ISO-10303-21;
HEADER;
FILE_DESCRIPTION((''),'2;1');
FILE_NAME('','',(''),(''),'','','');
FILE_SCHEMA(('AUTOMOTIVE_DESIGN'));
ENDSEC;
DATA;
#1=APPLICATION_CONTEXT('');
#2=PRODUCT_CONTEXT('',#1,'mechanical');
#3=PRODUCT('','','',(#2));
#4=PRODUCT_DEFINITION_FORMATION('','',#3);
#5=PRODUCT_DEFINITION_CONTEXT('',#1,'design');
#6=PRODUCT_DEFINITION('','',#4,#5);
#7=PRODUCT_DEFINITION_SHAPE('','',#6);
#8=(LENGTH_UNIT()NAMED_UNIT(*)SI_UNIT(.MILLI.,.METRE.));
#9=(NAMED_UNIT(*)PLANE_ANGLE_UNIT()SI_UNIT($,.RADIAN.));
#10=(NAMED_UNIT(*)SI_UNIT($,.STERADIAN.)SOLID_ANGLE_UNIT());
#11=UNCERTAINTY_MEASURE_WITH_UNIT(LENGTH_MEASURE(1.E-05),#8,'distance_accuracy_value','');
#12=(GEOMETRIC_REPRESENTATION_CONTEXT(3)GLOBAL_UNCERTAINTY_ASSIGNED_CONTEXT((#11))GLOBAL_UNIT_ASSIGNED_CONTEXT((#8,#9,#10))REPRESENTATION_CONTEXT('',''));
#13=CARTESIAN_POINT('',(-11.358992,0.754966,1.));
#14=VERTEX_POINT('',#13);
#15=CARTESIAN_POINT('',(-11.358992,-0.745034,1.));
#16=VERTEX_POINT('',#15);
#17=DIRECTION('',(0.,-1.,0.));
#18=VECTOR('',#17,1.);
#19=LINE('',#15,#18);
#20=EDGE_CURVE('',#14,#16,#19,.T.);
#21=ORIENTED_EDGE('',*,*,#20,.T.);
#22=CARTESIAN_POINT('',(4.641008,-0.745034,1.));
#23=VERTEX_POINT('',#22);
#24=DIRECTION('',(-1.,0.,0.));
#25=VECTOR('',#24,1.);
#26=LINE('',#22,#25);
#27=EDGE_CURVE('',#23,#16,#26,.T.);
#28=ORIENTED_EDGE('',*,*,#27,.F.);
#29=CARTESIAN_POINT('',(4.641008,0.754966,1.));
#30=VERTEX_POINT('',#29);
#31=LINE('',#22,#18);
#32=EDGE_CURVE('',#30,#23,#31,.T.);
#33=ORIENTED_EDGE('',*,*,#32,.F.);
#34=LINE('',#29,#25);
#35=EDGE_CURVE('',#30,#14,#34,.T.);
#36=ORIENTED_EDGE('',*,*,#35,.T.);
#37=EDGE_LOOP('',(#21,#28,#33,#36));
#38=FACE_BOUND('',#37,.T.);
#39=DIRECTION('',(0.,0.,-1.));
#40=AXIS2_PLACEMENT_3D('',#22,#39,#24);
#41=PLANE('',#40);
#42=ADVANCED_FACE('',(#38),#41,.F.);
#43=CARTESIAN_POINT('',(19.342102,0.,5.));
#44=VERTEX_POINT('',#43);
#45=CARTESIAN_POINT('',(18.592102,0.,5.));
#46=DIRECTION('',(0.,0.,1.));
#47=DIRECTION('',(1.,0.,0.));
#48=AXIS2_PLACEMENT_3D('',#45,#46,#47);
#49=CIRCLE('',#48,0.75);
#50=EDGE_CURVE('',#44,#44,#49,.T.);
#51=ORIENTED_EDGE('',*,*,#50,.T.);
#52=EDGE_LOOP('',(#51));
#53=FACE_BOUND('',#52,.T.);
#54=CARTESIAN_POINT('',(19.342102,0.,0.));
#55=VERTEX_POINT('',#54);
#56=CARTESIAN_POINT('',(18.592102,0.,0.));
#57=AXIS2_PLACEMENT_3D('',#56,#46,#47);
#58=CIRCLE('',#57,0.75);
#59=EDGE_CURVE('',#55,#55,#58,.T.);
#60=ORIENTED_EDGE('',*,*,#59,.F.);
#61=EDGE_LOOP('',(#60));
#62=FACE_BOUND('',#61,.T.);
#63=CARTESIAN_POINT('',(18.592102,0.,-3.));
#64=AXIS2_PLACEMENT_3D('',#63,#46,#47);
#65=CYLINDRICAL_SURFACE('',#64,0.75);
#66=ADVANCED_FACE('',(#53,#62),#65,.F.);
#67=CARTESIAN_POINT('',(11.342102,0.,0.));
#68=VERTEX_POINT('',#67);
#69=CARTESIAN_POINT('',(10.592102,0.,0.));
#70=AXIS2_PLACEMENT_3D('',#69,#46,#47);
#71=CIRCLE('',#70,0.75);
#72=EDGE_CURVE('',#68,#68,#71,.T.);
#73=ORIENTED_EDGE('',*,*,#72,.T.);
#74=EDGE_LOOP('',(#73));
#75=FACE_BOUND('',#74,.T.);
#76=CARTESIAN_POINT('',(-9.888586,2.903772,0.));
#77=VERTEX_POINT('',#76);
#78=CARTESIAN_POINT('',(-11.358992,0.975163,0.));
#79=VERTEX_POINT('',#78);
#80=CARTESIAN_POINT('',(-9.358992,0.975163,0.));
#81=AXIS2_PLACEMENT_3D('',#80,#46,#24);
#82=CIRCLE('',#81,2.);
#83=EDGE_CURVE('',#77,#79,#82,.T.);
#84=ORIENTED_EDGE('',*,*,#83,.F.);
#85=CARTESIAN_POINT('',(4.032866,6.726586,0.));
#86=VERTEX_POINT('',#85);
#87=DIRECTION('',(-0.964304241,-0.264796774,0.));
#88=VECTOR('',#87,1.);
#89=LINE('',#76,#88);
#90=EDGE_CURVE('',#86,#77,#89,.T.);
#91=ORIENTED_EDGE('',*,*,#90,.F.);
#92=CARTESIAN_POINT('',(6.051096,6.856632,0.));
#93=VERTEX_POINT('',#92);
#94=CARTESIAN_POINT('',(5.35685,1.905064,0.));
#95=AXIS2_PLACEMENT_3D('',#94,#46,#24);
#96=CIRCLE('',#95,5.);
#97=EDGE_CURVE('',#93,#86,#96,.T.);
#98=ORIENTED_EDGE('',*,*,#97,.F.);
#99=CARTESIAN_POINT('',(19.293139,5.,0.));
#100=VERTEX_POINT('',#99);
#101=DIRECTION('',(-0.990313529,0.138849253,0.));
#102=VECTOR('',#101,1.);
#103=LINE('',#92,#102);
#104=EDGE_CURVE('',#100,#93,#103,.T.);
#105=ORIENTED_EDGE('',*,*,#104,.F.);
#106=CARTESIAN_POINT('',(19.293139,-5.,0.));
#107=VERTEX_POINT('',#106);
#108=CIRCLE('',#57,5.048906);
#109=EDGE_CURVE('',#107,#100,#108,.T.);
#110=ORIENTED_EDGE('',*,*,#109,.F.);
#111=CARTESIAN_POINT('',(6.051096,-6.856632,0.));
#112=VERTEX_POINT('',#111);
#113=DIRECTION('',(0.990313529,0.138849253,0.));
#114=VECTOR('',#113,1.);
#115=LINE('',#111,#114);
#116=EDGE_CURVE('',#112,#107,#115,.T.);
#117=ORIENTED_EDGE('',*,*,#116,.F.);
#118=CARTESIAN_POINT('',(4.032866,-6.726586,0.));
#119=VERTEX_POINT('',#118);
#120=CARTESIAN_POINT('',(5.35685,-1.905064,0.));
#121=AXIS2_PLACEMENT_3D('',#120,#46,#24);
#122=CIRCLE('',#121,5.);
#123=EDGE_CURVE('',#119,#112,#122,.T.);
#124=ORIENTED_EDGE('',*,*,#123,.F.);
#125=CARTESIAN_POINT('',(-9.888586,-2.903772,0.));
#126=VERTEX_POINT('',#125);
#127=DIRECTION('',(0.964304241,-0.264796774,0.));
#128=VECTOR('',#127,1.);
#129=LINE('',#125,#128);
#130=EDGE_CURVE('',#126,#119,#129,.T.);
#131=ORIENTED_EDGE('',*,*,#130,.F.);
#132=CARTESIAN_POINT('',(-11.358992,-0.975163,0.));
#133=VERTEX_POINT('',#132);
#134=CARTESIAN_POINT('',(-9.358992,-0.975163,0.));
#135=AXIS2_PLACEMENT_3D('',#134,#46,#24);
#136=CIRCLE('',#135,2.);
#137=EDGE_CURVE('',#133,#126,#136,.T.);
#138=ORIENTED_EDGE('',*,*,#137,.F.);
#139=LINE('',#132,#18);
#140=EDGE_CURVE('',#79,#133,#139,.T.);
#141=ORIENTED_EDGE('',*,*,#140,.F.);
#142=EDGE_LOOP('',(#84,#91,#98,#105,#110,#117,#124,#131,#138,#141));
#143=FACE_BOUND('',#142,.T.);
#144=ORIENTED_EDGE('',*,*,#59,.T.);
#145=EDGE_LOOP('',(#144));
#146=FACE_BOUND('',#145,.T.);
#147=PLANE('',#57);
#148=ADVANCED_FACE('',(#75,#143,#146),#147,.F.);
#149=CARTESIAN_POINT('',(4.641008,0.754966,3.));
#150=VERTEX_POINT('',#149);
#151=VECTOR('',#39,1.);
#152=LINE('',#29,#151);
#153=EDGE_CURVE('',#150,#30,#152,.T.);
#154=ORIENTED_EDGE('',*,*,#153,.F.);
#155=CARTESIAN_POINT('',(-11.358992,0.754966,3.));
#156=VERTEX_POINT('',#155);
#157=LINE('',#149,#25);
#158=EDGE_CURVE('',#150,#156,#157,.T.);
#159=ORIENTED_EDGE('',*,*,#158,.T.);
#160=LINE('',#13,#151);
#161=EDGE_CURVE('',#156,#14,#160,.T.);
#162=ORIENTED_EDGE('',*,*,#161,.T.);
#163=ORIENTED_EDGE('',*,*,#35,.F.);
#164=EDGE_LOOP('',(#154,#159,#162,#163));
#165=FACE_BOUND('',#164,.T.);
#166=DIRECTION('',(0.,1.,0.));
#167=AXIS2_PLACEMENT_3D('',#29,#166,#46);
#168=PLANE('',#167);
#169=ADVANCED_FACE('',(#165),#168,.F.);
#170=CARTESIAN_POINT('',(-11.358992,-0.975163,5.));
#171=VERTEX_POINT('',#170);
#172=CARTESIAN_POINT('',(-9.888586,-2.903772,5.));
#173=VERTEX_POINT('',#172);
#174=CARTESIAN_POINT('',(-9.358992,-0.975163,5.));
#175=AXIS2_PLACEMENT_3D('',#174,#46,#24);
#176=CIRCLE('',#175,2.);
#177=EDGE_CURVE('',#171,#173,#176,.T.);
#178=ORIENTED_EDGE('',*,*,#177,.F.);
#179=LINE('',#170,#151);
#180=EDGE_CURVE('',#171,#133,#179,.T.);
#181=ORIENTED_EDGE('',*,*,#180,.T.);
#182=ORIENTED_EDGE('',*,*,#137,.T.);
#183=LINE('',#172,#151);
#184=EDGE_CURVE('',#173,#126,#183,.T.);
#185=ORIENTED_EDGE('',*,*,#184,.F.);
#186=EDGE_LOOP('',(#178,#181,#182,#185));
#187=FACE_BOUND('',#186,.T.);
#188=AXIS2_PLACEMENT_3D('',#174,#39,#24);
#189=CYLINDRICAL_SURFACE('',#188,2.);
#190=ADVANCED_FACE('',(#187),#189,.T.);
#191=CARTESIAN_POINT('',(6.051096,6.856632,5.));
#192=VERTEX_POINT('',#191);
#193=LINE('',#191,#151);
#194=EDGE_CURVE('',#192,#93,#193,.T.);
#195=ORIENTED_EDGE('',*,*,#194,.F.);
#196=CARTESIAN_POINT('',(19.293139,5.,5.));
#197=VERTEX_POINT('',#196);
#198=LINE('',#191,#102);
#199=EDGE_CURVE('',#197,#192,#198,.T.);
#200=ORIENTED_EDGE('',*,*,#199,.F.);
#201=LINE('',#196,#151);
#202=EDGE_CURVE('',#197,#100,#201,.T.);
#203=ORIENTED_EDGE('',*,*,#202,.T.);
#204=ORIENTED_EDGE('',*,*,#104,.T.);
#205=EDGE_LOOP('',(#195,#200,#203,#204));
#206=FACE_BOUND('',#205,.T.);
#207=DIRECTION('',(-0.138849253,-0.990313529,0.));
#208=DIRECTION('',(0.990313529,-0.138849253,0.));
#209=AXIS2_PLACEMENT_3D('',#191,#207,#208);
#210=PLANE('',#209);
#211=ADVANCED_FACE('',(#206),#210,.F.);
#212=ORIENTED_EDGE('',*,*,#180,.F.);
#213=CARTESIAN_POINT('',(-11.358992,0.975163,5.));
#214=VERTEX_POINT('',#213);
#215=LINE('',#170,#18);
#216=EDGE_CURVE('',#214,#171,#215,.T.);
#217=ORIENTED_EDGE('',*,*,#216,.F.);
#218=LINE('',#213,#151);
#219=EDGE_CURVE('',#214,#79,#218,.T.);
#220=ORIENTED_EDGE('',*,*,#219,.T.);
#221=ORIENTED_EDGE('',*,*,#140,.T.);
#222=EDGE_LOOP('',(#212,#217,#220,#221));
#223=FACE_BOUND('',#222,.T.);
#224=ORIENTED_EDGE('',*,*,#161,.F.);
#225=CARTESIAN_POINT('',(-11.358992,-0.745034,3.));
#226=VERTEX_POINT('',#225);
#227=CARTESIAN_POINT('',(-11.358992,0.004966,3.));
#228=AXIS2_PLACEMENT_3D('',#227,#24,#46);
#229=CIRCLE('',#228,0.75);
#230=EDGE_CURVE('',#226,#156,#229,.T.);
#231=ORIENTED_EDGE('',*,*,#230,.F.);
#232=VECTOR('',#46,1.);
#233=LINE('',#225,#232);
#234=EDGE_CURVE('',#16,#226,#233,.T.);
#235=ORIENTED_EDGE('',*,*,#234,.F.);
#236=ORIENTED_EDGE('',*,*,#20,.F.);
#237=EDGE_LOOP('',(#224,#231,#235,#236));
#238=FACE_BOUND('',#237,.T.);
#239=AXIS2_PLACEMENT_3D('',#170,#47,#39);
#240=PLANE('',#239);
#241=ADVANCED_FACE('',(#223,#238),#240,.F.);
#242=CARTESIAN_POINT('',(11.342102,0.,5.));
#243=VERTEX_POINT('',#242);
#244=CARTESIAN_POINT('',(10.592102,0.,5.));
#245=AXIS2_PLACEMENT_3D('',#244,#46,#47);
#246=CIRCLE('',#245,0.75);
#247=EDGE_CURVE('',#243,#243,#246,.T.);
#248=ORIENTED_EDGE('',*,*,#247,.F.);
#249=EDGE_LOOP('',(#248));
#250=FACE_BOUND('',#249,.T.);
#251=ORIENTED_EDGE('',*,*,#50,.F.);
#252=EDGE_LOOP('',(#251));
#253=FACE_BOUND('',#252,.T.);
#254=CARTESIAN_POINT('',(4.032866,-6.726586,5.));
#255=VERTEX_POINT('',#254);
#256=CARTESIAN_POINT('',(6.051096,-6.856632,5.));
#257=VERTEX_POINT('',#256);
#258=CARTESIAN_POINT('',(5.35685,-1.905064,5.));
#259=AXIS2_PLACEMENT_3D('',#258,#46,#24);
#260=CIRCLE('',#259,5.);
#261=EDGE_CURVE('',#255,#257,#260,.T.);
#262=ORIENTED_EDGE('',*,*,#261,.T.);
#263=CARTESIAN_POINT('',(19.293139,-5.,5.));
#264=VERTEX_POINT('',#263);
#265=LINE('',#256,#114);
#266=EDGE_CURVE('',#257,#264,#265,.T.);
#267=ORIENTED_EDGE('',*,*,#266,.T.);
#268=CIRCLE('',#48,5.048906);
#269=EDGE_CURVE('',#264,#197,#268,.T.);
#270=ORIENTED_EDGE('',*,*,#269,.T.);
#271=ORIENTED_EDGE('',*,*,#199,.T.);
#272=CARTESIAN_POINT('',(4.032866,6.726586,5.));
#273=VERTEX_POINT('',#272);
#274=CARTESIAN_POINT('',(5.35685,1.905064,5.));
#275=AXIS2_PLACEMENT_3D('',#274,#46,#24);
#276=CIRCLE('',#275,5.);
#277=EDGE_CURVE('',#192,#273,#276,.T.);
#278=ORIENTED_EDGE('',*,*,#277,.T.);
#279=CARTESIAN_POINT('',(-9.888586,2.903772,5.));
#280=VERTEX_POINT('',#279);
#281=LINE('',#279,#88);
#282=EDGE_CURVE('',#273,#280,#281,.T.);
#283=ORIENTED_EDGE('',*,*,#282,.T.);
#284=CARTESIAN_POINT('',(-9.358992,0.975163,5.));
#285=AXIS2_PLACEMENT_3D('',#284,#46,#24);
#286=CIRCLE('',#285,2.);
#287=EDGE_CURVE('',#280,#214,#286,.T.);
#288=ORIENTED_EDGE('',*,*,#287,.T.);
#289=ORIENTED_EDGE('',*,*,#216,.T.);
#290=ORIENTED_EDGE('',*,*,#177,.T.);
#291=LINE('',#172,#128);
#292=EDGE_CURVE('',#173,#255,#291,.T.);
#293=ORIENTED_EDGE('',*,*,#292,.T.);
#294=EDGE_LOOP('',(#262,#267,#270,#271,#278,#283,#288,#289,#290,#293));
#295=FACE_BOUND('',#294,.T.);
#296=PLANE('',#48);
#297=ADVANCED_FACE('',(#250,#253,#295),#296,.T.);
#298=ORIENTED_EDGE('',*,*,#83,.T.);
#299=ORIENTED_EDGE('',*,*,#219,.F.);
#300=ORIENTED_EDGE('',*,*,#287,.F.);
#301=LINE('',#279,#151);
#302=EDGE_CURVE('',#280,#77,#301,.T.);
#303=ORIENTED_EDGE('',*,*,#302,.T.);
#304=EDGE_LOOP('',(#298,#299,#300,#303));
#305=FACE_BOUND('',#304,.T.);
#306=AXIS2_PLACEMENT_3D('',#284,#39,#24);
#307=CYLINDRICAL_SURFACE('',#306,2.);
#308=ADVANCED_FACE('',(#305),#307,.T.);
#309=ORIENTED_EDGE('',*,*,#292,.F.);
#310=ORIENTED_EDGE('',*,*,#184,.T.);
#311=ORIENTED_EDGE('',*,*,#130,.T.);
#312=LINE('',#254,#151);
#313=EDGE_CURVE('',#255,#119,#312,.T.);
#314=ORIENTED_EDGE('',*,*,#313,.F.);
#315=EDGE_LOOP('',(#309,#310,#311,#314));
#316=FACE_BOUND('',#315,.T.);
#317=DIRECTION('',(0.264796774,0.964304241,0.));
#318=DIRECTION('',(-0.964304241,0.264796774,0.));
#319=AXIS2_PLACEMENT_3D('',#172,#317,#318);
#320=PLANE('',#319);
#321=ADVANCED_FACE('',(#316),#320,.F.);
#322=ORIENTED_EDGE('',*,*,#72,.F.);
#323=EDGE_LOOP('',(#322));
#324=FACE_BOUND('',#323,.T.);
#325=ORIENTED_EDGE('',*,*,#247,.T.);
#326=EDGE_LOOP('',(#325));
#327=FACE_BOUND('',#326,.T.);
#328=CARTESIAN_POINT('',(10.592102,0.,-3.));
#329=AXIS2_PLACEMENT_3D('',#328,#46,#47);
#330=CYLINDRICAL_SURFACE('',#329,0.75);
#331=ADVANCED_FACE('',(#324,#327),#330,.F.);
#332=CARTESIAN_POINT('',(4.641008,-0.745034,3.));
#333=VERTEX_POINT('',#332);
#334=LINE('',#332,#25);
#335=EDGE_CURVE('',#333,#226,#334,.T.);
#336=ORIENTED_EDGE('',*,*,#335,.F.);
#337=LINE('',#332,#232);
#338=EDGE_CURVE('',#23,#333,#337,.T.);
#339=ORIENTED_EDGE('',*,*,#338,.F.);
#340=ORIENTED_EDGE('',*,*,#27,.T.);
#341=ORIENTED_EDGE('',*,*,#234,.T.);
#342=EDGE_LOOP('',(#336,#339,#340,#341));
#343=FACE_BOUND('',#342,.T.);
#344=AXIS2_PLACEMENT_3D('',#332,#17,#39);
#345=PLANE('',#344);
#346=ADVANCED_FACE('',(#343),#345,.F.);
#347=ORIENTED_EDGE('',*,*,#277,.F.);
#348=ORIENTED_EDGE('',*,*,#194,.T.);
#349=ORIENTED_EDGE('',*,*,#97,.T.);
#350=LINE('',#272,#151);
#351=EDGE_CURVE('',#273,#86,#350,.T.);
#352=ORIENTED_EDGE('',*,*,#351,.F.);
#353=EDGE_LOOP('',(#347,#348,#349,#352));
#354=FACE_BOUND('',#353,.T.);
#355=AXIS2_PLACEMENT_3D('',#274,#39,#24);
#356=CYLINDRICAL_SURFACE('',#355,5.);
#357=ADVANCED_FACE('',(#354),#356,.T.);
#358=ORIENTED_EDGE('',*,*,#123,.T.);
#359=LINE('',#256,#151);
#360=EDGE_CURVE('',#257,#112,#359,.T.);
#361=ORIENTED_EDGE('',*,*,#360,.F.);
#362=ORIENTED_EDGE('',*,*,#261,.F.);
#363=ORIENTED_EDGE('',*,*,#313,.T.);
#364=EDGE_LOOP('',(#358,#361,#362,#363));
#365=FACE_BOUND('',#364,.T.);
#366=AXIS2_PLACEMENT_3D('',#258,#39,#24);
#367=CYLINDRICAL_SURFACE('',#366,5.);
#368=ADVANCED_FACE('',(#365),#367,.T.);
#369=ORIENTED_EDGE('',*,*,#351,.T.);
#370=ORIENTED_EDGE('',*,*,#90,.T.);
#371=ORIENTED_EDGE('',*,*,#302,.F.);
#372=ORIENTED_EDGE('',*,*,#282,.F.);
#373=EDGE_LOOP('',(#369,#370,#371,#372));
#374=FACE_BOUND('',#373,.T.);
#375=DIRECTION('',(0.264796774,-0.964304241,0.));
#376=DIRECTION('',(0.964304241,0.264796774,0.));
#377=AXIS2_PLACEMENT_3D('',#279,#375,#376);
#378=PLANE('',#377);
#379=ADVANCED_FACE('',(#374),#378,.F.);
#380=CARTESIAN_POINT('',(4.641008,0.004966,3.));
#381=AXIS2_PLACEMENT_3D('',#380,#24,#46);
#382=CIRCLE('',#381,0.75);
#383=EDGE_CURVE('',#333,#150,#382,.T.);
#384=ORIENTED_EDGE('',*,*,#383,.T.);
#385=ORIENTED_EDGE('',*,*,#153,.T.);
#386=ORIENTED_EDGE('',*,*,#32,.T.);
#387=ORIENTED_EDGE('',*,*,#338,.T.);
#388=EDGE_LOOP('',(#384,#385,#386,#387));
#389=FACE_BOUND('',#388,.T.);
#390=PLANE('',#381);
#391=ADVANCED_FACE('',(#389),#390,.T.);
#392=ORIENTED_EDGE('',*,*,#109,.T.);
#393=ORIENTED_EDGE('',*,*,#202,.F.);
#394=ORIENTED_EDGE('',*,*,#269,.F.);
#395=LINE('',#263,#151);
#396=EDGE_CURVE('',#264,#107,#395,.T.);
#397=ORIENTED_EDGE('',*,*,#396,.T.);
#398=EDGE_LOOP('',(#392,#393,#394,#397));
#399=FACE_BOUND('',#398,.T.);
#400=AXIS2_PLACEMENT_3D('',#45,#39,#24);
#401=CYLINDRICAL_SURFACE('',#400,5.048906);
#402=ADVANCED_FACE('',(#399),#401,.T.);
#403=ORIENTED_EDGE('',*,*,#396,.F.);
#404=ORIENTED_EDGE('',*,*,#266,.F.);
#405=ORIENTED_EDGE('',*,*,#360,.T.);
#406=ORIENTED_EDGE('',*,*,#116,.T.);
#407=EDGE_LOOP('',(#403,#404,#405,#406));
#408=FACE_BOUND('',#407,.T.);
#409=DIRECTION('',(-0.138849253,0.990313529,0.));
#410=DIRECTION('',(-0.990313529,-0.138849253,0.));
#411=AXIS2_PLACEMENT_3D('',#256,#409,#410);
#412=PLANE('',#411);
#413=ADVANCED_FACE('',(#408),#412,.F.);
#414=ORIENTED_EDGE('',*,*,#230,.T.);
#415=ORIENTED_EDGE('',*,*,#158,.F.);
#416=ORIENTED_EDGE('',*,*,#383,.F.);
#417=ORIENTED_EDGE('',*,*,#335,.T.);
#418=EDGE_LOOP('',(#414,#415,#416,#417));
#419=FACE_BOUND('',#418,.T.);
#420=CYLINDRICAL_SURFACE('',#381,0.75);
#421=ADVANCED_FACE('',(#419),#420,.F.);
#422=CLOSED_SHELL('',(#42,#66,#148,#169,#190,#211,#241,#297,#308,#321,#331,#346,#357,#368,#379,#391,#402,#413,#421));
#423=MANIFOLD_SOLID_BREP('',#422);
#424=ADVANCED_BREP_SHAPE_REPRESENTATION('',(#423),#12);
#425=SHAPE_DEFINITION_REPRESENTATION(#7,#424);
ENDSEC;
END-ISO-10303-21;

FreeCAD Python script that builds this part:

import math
import FreeCAD as App
import Part
import Sketcher

doc = App.newDocument("Part")
body = doc.addObject("PartDesign::Body", "Body")

# Sketch on XY plane
sketch1 = body.newObject("Sketcher::SketchObject", "Sketch")
sketch1.AttachmentSupport = (doc.getObject("XY_Plane"), [""])
sketch1.MapMode = "FlatFace"
sketch1.addGeometry([
    Part.LineSegment(App.Vector(-11.4, 1, 0), App.Vector(-11.4, -1, 0)),  # 0
    Part.ArcOfCircle(Part.Circle(App.Vector(-9.4, -1, 0), App.Vector(0, 0, 1), 2), math.radians(-180), math.radians(-105)),  # 1
    Part.LineSegment(App.Vector(-9.9, -2.9, 0), App.Vector(4, -6.7, 0)),  # 2
    Part.ArcOfCircle(Part.Circle(App.Vector(5.4, -1.9, 0), App.Vector(0, 0, 1), 5), math.radians(-105), math.radians(-82)),  # 3
    Part.LineSegment(App.Vector(6.1, -6.9, 0), App.Vector(19.3, -5, 0)),  # 4
    Part.ArcOfCircle(Part.Circle(App.Vector(18.6, 0, 0), App.Vector(0, 0, 1), 5), math.radians(-82), math.radians(82)),  # 5
    Part.LineSegment(App.Vector(19.3, 5, 0), App.Vector(6.1, 6.9, 0)),  # 6
    Part.ArcOfCircle(Part.Circle(App.Vector(5.4, 1.9, 0), App.Vector(0, 0, 1), 5), math.radians(82), math.radians(105)),  # 7
    Part.LineSegment(App.Vector(4, 6.7, 0), App.Vector(-9.9, 2.9, 0)),  # 8
    Part.ArcOfCircle(Part.Circle(App.Vector(-9.4, 1, 0), App.Vector(0, 0, 1), 2), math.radians(105), math.radians(180)),  # 9
], False)
sketch1.addConstraint([
    Sketcher.Constraint("Tangent", 0, 2, 1, 1),
    Sketcher.Constraint("Tangent", 1, 2, 2, 1),
    Sketcher.Constraint("Tangent", 2, 2, 3, 1),
    Sketcher.Constraint("Tangent", 3, 2, 4, 1),
    Sketcher.Constraint("Tangent", 4, 2, 5, 1),
    Sketcher.Constraint("Tangent", 5, 2, 6, 1),
    Sketcher.Constraint("Tangent", 6, 2, 7, 1),
    Sketcher.Constraint("Tangent", 7, 2, 8, 1),
    Sketcher.Constraint("Tangent", 8, 2, 9, 1),
    Sketcher.Constraint("Tangent", 9, 2, 0, 1),
    Sketcher.Constraint("Vertical", 0),
    Sketcher.Constraint("Equal", 3, 7),
    Sketcher.Constraint("Equal", 1, 9),
    Sketcher.Constraint("Symmetric", 3, 3, 7, 3, -1),
    Sketcher.Constraint("PointOnObject", 5, 3, -1),
    Sketcher.Constraint("Vertical", 2, 2, 7, 2),
    Sketcher.Constraint("Radius", 1, 2.0),
    Sketcher.Constraint("Radius", 3, 5.0),
    Sketcher.Constraint("DistanceY", 4, 2, -1, 1, 5.0),
    Sketcher.Constraint("Radius", 5, 5.048906),
    Sketcher.Constraint("DistanceX", -1, 1, 5, 3, 18.592102),
    Sketcher.Constraint("DistanceY", 3, 3, 1, 3, 0.929901),
    Sketcher.Constraint("DistanceY", 0, 2, 0, 1, 1.950327),
    Sketcher.Constraint("DistanceY", 1, 2, -1, 1, 2.903772),
])
pad1 = body.newObject("PartDesign::Pad", "Pad")
pad1.Profile = sketch1
pad1.Length = 5

# Sketch on YZ plane
sketch2 = body.newObject("Sketcher::SketchObject", "Sketch001")
sketch2.AttachmentSupport = (doc.getObject("YZ_Plane"), [""])
sketch2.MapMode = "FlatFace"
sketch2.AttachmentOffset = App.Placement(App.Vector(0, 0, -11.358992), App.Rotation())
sketch2.addGeometry([
    Part.LineSegment(App.Vector(0.8, 1, 0), App.Vector(-0.7, 1, 0)),
    Part.LineSegment(App.Vector(-0.7, 1, 0), App.Vector(-0.7, 3, 0)),
    Part.ArcOfCircle(Part.Circle(App.Vector(0, 3, 0), App.Vector(0, 0, 1), 0.8), math.radians(0), math.radians(180)),
    Part.LineSegment(App.Vector(0.8, 3, 0), App.Vector(0.8, 1, 0)),
], False)
sketch2.addConstraint([
    Sketcher.Constraint("Coincident", 0, 2, 1, 1),
    Sketcher.Constraint("Tangent", 1, 2, 2, 2),
    Sketcher.Constraint("Tangent", 2, 1, 3, 1),
    Sketcher.Constraint("Coincident", 3, 2, 0, 1),
    Sketcher.Constraint("Horizontal", 0),
    Sketcher.Constraint("Vertical", 1),
    Sketcher.Constraint("Vertical", 3),
    Sketcher.Constraint("DistanceY", 1, 1, 1, 2, 2.0),
    Sketcher.Constraint("Radius", 2, 0.75),
    Sketcher.Constraint("DistanceY", -1, 1, 2, 3, 3.0),
    Sketcher.Constraint("DistanceX", -1, 1, 2, 3, 0.004966),
])
pocket1 = body.newObject("PartDesign::Pocket", "Pocket")
pocket1.Profile = sketch2
pocket1.Length = 16
pocket1.Reversed = True

# Sketch on XY plane
sketch3 = body.newObject("Sketcher::SketchObject", "Sketch002")
sketch3.AttachmentSupport = (doc.getObject("XY_Plane"), [""])
sketch3.MapMode = "FlatFace"
sketch3.AttachmentOffset = App.Placement(App.Vector(0, 0, 5), App.Rotation())
sketch3.addGeometry([
    Part.Circle(App.Vector(18.6, 0, 0), App.Vector(0, 0, 1), 0.8),
    Part.Circle(App.Vector(10.6, 0, 0), App.Vector(0, 0, 1), 0.8),
], False)
sketch3.addConstraint([
    Sketcher.Constraint("Equal", 0, 1),
    Sketcher.Constraint("PointOnObject", 0, 3, -1),
    Sketcher.Constraint("PointOnObject", 1, 3, -1),
    Sketcher.Constraint("Diameter", 0, 1.5),
    Sketcher.Constraint("DistanceX", 1, 3, 0, 3, 8.0),
    Sketcher.Constraint("DistanceX", -1, 1, 0, 3, 18.592102),
])
pocket2 = body.newObject("PartDesign::Pocket", "Pocket001")
pocket2.Profile = sketch3
pocket2.Length = 8

doc.recompute()
